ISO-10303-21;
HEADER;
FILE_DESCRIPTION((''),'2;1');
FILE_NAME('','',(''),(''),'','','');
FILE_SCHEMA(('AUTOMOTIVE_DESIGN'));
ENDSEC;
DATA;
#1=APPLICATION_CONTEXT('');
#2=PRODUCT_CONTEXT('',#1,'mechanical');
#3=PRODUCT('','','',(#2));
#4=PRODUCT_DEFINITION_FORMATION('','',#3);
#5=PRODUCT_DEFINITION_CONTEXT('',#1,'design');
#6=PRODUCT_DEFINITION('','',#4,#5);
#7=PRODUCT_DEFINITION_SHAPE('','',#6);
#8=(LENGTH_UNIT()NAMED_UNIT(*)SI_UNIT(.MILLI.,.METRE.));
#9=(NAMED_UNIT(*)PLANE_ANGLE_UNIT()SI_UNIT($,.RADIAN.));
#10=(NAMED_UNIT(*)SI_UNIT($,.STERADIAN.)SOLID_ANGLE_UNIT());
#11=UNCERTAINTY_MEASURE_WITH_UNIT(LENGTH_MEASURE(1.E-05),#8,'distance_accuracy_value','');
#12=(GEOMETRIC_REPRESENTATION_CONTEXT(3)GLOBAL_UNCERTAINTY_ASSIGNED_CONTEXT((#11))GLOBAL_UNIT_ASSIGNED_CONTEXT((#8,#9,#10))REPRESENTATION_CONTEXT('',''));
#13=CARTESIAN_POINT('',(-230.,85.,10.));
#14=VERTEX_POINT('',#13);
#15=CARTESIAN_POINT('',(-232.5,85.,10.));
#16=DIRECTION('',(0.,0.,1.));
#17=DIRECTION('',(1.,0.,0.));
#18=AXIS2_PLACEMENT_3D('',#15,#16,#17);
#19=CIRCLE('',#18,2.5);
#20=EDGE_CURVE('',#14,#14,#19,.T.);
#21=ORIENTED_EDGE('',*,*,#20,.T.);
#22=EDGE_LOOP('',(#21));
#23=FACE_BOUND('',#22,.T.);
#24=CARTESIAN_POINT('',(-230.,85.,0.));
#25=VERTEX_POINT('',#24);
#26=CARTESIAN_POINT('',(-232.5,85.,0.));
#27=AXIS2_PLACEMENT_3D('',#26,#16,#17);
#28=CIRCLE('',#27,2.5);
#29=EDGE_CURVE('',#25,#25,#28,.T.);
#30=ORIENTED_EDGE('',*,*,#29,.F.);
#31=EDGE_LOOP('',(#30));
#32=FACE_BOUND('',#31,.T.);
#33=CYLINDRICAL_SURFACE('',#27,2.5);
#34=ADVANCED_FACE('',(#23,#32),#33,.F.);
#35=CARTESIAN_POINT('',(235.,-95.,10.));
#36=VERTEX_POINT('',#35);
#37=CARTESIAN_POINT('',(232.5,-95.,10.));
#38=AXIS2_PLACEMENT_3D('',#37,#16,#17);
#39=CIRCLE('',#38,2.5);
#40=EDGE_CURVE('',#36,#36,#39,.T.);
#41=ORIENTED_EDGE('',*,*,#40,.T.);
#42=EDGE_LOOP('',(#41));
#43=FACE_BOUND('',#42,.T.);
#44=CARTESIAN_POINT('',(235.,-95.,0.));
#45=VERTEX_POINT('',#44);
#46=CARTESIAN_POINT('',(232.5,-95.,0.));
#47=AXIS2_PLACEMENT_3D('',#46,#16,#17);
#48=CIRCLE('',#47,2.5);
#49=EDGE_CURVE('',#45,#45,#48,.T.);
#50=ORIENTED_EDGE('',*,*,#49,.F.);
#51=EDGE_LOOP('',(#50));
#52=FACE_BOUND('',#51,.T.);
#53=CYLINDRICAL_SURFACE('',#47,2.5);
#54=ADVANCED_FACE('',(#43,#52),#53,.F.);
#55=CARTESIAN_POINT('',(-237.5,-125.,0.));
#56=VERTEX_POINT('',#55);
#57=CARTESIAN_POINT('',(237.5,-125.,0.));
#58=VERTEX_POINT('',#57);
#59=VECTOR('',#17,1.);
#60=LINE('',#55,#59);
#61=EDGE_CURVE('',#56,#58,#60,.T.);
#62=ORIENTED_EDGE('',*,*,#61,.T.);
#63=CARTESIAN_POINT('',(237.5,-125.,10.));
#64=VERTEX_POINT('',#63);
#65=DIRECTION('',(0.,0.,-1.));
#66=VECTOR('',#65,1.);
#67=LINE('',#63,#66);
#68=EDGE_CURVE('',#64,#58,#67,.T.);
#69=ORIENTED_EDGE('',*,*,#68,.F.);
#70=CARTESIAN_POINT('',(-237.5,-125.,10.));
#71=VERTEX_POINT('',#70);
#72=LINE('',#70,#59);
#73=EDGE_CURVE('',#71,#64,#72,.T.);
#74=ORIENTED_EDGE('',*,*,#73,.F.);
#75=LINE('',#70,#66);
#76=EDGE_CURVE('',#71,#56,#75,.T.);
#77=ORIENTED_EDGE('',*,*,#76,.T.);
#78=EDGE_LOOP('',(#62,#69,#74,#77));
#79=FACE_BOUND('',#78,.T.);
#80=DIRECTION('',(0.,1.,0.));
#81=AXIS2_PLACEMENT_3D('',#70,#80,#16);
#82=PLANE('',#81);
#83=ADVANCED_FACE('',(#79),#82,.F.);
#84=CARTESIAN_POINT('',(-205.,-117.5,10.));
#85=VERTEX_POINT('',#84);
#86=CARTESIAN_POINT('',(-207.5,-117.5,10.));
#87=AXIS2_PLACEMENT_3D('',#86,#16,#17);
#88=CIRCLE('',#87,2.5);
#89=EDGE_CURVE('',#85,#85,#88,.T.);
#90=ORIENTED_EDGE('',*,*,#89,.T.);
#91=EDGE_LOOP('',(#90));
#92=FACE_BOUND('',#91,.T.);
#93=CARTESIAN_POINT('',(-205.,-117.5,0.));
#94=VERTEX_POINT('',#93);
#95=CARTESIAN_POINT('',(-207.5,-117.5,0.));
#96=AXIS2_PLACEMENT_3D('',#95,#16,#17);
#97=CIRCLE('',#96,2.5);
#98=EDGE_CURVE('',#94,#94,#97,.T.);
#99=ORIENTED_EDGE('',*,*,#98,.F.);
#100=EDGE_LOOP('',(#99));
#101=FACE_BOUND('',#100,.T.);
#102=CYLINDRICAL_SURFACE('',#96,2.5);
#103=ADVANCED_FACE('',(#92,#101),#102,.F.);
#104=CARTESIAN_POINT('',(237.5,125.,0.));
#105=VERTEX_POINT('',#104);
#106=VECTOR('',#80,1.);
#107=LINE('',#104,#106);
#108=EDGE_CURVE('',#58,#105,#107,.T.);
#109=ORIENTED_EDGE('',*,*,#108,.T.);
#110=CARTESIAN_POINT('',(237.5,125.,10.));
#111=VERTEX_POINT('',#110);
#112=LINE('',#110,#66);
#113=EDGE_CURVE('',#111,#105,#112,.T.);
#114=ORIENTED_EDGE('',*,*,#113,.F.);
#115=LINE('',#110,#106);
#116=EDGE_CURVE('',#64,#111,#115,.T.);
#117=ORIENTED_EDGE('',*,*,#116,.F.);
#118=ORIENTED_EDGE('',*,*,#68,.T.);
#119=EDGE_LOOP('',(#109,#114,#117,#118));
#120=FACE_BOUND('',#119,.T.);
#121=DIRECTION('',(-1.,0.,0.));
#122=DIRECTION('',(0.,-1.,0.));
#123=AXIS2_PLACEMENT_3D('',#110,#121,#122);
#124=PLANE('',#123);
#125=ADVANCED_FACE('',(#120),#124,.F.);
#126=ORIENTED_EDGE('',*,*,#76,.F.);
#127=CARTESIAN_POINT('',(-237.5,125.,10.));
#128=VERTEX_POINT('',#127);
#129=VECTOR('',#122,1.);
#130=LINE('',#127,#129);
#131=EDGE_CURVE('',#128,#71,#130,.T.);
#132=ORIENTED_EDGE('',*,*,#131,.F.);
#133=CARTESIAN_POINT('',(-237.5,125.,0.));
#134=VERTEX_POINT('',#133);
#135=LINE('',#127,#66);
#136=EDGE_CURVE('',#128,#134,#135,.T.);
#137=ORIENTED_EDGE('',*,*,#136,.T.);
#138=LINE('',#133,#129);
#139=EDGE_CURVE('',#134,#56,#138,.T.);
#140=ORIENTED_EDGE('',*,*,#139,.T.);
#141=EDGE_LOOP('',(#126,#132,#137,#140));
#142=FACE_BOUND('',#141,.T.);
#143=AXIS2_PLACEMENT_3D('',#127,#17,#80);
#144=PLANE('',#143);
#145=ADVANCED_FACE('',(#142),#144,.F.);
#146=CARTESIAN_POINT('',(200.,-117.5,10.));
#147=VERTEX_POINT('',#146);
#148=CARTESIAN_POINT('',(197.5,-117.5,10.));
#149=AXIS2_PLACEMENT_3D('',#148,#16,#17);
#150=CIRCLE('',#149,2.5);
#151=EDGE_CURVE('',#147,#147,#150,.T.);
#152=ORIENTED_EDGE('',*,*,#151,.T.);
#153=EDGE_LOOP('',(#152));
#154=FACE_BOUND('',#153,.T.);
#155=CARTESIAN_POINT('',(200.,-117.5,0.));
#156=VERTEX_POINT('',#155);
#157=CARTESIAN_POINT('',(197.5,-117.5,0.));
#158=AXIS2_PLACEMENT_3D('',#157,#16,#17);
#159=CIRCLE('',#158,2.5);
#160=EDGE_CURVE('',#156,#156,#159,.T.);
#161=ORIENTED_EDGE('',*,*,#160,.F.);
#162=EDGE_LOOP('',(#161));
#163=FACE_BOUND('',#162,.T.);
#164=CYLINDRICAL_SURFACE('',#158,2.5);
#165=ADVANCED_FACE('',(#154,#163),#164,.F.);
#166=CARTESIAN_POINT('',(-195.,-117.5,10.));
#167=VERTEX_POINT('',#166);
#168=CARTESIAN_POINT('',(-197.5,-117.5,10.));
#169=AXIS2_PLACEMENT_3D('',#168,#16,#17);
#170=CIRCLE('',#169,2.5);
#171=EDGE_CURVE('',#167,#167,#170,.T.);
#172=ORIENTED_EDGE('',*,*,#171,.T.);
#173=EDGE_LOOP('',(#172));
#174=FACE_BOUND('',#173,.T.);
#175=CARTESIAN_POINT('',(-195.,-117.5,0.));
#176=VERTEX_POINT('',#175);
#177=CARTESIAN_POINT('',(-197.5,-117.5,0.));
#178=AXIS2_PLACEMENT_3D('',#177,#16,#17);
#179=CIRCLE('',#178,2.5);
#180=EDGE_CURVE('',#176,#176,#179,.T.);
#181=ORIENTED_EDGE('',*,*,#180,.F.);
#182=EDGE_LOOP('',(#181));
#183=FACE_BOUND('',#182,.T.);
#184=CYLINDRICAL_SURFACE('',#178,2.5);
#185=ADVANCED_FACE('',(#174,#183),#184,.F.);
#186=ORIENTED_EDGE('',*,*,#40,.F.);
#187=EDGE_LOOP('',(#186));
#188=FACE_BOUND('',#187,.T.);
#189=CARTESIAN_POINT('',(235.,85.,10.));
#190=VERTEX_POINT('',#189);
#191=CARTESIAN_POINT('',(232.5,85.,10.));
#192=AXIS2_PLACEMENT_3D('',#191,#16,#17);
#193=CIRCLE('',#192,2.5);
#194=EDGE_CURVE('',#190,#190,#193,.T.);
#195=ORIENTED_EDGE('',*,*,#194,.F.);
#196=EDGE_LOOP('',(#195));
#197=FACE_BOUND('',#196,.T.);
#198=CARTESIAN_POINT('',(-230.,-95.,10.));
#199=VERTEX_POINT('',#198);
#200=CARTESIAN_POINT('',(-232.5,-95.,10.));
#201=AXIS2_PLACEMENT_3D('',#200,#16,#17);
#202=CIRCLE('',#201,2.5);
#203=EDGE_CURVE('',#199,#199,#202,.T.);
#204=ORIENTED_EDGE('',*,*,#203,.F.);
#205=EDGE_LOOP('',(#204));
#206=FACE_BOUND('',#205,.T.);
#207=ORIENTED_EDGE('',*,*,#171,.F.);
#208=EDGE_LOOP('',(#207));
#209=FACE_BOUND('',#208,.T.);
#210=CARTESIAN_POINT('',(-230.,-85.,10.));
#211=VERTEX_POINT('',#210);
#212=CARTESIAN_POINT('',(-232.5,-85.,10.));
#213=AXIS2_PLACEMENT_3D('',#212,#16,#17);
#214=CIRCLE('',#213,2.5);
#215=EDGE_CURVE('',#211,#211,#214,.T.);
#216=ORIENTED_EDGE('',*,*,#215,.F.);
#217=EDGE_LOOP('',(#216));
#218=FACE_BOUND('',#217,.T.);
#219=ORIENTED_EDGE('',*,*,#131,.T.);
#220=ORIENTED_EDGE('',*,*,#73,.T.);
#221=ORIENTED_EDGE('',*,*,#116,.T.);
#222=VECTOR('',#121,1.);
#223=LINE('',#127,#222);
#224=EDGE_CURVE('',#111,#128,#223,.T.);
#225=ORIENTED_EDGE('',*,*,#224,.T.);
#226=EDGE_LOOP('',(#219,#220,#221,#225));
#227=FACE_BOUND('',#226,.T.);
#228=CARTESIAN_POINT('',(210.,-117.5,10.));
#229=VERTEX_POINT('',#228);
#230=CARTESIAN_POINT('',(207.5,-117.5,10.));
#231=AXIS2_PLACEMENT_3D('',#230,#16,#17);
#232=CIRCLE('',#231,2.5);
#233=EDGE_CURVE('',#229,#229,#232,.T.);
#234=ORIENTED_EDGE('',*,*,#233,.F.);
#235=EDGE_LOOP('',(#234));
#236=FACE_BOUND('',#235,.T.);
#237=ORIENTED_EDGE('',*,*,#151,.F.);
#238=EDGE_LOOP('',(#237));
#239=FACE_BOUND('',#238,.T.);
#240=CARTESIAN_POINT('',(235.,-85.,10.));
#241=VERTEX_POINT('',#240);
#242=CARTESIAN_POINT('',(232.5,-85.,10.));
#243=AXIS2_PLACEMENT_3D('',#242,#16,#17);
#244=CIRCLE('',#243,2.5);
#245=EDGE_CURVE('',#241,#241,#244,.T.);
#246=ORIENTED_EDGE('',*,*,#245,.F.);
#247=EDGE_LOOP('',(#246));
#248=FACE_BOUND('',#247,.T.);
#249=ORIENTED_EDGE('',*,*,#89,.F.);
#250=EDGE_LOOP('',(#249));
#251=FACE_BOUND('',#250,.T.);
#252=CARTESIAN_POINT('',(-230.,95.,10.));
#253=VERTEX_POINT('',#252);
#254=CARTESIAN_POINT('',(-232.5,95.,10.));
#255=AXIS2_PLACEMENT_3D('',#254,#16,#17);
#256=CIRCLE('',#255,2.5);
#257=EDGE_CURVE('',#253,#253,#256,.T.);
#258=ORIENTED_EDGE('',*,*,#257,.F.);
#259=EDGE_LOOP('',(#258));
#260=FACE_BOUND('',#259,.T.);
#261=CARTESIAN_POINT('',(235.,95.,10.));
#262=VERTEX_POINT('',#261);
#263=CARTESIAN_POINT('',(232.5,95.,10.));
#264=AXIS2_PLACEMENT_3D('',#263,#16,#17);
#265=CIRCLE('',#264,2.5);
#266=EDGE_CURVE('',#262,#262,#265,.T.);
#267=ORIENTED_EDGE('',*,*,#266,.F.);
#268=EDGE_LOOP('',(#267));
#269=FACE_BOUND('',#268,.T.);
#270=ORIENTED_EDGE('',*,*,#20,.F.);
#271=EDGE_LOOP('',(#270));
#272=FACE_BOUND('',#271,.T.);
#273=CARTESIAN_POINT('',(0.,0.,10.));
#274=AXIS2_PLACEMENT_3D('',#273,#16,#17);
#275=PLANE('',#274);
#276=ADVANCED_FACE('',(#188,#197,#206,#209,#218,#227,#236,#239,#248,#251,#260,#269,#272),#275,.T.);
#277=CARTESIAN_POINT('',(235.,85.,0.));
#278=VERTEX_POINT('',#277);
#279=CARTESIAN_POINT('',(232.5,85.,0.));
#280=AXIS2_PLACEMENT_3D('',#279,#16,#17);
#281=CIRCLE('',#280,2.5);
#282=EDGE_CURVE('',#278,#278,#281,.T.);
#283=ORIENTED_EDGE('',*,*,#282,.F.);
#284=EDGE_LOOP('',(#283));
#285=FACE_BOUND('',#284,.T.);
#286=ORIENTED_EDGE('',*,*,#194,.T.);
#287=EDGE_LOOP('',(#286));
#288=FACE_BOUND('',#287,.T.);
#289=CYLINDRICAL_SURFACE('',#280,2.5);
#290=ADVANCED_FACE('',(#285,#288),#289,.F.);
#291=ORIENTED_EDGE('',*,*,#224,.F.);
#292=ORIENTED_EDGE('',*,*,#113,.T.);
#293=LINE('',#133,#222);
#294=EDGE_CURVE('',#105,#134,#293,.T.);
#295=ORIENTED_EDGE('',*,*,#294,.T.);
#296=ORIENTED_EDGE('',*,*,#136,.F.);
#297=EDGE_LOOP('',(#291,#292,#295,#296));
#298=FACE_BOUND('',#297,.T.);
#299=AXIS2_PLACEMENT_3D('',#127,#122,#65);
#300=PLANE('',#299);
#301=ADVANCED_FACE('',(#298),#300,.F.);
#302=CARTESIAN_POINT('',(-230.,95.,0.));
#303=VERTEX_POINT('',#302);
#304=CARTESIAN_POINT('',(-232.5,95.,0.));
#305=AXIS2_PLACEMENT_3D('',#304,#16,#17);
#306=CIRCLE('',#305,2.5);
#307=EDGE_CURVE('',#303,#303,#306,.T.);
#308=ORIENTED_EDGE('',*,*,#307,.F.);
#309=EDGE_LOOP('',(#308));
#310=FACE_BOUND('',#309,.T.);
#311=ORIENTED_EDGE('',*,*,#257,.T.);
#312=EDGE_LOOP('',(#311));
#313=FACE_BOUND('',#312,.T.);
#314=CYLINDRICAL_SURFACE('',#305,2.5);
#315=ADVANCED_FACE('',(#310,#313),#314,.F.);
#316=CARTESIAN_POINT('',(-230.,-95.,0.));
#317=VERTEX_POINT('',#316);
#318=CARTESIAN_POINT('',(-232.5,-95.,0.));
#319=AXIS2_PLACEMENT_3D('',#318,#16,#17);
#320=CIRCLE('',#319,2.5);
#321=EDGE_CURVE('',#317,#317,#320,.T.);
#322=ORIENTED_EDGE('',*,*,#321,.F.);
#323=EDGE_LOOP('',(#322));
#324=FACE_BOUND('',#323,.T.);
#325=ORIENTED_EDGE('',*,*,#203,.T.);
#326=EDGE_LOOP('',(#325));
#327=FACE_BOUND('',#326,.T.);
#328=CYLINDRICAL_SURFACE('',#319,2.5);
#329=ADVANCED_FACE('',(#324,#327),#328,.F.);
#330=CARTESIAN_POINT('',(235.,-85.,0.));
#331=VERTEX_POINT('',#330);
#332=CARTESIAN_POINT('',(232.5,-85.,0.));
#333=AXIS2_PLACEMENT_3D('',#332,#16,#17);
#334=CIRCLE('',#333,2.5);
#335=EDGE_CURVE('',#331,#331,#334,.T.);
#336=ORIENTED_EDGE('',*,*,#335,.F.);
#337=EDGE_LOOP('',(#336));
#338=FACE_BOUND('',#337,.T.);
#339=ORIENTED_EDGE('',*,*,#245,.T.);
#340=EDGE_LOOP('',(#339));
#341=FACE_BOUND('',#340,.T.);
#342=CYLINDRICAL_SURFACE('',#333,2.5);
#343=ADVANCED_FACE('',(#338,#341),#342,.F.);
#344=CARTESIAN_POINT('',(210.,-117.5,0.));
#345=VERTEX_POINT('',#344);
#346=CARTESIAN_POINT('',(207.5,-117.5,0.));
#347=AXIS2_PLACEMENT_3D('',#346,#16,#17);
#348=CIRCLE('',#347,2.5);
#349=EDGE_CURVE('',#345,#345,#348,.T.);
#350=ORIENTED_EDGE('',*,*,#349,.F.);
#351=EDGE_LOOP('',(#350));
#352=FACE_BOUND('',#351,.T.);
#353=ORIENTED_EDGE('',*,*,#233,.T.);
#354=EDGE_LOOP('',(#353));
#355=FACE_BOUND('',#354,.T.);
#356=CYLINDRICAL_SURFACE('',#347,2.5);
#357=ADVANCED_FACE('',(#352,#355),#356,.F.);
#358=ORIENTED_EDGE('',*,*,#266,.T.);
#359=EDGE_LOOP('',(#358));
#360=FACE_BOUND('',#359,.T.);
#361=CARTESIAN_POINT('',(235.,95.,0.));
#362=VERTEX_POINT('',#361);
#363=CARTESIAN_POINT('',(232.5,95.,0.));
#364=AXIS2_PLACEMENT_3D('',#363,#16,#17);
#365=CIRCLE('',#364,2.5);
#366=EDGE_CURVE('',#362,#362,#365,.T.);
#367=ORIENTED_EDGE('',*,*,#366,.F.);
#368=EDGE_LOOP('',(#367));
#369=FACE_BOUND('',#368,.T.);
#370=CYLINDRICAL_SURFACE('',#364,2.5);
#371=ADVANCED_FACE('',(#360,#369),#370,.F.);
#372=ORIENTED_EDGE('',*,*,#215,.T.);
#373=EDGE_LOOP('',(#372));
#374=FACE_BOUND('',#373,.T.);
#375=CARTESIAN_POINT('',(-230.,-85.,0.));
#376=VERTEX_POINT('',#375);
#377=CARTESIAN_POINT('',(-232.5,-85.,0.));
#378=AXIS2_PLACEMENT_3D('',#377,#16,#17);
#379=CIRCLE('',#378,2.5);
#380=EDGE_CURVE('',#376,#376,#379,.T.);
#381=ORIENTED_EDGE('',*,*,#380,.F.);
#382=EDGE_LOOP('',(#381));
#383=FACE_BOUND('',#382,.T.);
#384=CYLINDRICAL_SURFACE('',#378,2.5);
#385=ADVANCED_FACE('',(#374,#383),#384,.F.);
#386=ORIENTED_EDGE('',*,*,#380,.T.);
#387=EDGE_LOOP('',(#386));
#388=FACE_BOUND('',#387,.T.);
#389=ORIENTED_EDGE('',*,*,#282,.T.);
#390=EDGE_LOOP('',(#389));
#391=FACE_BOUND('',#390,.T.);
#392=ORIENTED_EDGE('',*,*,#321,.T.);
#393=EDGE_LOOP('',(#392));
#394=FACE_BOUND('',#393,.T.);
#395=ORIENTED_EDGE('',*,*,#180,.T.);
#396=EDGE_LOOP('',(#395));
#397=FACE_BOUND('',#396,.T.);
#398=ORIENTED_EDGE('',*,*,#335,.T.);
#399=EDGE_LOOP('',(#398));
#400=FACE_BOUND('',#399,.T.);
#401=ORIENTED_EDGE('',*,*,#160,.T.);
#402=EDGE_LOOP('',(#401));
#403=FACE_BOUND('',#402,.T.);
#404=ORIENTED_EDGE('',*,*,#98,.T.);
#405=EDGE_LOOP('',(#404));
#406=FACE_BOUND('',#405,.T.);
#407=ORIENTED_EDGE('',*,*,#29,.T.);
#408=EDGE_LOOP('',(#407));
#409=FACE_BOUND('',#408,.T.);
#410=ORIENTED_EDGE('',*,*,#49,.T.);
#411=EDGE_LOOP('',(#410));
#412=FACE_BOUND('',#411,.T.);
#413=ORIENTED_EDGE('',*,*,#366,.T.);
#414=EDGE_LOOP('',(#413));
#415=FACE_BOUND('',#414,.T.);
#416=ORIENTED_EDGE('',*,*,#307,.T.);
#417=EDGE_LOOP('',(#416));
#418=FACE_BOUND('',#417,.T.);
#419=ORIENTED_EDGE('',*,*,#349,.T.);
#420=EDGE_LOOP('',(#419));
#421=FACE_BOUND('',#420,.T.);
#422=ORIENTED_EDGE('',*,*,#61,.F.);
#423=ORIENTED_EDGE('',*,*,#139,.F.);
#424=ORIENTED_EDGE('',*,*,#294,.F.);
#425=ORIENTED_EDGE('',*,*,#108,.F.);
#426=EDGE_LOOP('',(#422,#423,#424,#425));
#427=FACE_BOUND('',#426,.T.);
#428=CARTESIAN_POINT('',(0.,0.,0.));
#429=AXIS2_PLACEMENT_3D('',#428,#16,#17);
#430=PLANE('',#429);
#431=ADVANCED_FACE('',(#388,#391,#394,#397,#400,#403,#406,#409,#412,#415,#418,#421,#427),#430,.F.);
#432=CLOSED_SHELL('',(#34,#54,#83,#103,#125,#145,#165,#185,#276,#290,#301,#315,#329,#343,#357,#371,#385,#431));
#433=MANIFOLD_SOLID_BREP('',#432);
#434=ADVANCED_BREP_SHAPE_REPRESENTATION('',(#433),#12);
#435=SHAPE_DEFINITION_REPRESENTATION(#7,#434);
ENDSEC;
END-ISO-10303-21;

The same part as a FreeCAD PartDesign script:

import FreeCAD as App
import Part
import Sketcher
from FreeCAD import Vector

doc = App.newDocument("Part")
body = doc.addObject("PartDesign::Body", "Body")

# Sketch on XY plane
sketch1 = body.newObject("Sketcher::SketchObject", "Sketch")
sketch1.AttachmentSupport = (doc.getObject("XY_Plane"), [""])
sketch1.MapMode = "FlatFace"
sketch1.addGeometry(Part.LineSegment(Vector(-238, 125, 0), Vector(-238, -125, 0)), False)
sketch1.addGeometry(Part.LineSegment(Vector(-238, -125, 0), Vector(238, -125, 0)), False)
sketch1.addGeometry(Part.LineSegment(Vector(238, -125, 0), Vector(238, 125, 0)), False)
sketch1.addGeometry(Part.LineSegment(Vector(238, 125, 0), Vector(-238, 125, 0)), False)
sketch1.addConstraint(Sketcher.Constraint("Coincident", 0, 2, 1, 1))
sketch1.addConstraint(Sketcher.Constraint("Coincident", 1, 2, 2, 1))
sketch1.addConstraint(Sketcher.Constraint("Coincident", 2, 2, 3, 1))
sketch1.addConstraint(Sketcher.Constraint("Coincident", 3, 2, 0, 1))
sketch1.addConstraint(Sketcher.Constraint("Vertical", 0))
sketch1.addConstraint(Sketcher.Constraint("Horizontal", 1))
sketch1.addConstraint(Sketcher.Constraint("Vertical", 2))
sketch1.addConstraint(Sketcher.Constraint("Horizontal", 3))
sketch1.addConstraint(Sketcher.Constraint("Symmetric", 0, 2, 2, 2, -1, 1))
sketch1.addConstraint(Sketcher.Constraint("DistanceX", 1, 1, 1, 2, 475.0))
sketch1.addConstraint(Sketcher.Constraint("DistanceY", 0, 2, 0, 1, 250.0))
pad1 = body.newObject("PartDesign::Pad", "Pad")
pad1.Profile = sketch1
pad1.Length = 10

# Sketch on XY plane
sketch2 = body.newObject("Sketcher::SketchObject", "Sketch001")
sketch2.AttachmentSupport = (doc.getObject("XY_Plane"), [""])
sketch2.MapMode = "FlatFace"
sketch2.AttachmentOffset = App.Placement(Vector(0, 0, 10), App.Rotation())
sketch2.addGeometry(Part.Circle(Vector(-232.5, 95, 0), Vector(0, 0, 1), 2.5), False)
sketch2.addGeometry(Part.Circle(Vector(-232.5, 85, 0), Vector(0, 0, 1), 2.5), False)
sketch2.addGeometry(Part.Circle(Vector(-207.5, -117.5, 0), Vector(0, 0, 1), 2.5), False)
sketch2.addGeometry(Part.Circle(Vector(-197.5, -117.5, 0), Vector(0, 0, 1), 2.5), False)
sketch2.addGeometry(Part.Circle(Vector(197.5, -117.5, 0), Vector(0, 0, 1), 2.5), False)
sketch2.addGeometry(Part.Circle(Vector(207.5, -117.5, 0), Vector(0, 0, 1), 2.5), False)
sketch2.addGeometry(Part.Circle(Vector(232.5, 95, 0), Vector(0, 0, 1), 2.5), False)
sketch2.addGeometry(Part.Circle(Vector(232.5, 85, 0), Vector(0, 0, 1), 2.5), False)
sketch2.addGeometry(Part.Circle(Vector(232.5, -85, 0), Vector(0, 0, 1), 2.5), False)
sketch2.addGeometry(Part.Circle(Vector(232.5, -95, 0), Vector(0, 0, 1), 2.5), False)
sketch2.addGeometry(Part.Circle(Vector(-232.5, -85, 0), Vector(0, 0, 1), 2.5), False)
sketch2.addGeometry(Part.Circle(Vector(-232.5, -95, 0), Vector(0, 0, 1), 2.5), False)
sketch2.addConstraint(Sketcher.Constraint("Equal", 0, 1))
sketch2.addConstraint(Sketcher.Constraint("Equal", 1, 2))
sketch2.addConstraint(Sketcher.Constraint("Equal", 2, 3))
sketch2.addConstraint(Sketcher.Constraint("Equal", 3, 4))
sketch2.addConstraint(Sketcher.Constraint("Equal", 4, 5))
sketch2.addConstraint(Sketcher.Constraint("Equal", 5, 6))
sketch2.addConstraint(Sketcher.Constraint("Equal", 6, 7))
sketch2.addConstraint(Sketcher.Constraint("Equal", 7, 8))
sketch2.addConstraint(Sketcher.Constraint("Equal", 8, 9))
sketch2.addConstraint(Sketcher.Constraint("Equal", 9, 10))
sketch2.addConstraint(Sketcher.Constraint("Equal", 10, 11))
sketch2.addConstraint(Sketcher.Constraint("Symmetric", 1, 3, 8, 3, -1, 1))
sketch2.addConstraint(Sketcher.Constraint("Symmetric", 0, 3, 9, 3, -1, 1))
sketch2.addConstraint(Sketcher.Constraint("Symmetric", 7, 3, 10, 3, -1, 1))
sketch2.addConstraint(Sketcher.Constraint("Symmetric", 6, 3, 11, 3, -1, 1))
sketch2.addConstraint(Sketcher.Constraint("Symmetric", 3, 3, 4, 3, -2))
sketch2.addConstraint(Sketcher.Constraint("Symmetric", 2, 3, 5, 3, -2))
sketch2.addConstraint(Sketcher.Constraint("Symmetric", 0, 3, 6, 3, -2))
sketch2.addConstraint(Sketcher.Constraint("Symmetric", 1, 3, 7, 3, -2))
sketch2.addConstraint(Sketcher.Constraint("Horizontal", 2, 3, 3, 3))
sketch2.addConstraint(Sketcher.Constraint("Vertical", 0, 3, 1, 3))
sketch2.addConstraint(Sketcher.Constraint("Diameter", 0, 5.0))
sketch2.addConstraint(Sketcher.Constraint("DistanceY", -1, 1, 0, 3, 95.0))
sketch2.addConstraint(Sketcher.Constraint("DistanceY", -1, 1, 1, 3, 85.0))
sketch2.addConstraint(Sketcher.Constraint("DistanceX", 1, 3, 2, 3, 25.0))
sketch2.addConstraint(Sketcher.Constraint("DistanceX", 2, 3, 3, 3, 10.0))
sketch2.addConstraint(Sketcher.Constraint("DistanceX", 3, 3, 4, 3, 395.0))
sketch2.addConstraint(Sketcher.Constraint("DistanceY", 2, 3, -1, 1, 117.5))
pocket1 = body.newObject("PartDesign::Pocket", "Pocket")
pocket1.Profile = sketch2
pocket1.Type = "ThroughAll"

doc.recompute()
